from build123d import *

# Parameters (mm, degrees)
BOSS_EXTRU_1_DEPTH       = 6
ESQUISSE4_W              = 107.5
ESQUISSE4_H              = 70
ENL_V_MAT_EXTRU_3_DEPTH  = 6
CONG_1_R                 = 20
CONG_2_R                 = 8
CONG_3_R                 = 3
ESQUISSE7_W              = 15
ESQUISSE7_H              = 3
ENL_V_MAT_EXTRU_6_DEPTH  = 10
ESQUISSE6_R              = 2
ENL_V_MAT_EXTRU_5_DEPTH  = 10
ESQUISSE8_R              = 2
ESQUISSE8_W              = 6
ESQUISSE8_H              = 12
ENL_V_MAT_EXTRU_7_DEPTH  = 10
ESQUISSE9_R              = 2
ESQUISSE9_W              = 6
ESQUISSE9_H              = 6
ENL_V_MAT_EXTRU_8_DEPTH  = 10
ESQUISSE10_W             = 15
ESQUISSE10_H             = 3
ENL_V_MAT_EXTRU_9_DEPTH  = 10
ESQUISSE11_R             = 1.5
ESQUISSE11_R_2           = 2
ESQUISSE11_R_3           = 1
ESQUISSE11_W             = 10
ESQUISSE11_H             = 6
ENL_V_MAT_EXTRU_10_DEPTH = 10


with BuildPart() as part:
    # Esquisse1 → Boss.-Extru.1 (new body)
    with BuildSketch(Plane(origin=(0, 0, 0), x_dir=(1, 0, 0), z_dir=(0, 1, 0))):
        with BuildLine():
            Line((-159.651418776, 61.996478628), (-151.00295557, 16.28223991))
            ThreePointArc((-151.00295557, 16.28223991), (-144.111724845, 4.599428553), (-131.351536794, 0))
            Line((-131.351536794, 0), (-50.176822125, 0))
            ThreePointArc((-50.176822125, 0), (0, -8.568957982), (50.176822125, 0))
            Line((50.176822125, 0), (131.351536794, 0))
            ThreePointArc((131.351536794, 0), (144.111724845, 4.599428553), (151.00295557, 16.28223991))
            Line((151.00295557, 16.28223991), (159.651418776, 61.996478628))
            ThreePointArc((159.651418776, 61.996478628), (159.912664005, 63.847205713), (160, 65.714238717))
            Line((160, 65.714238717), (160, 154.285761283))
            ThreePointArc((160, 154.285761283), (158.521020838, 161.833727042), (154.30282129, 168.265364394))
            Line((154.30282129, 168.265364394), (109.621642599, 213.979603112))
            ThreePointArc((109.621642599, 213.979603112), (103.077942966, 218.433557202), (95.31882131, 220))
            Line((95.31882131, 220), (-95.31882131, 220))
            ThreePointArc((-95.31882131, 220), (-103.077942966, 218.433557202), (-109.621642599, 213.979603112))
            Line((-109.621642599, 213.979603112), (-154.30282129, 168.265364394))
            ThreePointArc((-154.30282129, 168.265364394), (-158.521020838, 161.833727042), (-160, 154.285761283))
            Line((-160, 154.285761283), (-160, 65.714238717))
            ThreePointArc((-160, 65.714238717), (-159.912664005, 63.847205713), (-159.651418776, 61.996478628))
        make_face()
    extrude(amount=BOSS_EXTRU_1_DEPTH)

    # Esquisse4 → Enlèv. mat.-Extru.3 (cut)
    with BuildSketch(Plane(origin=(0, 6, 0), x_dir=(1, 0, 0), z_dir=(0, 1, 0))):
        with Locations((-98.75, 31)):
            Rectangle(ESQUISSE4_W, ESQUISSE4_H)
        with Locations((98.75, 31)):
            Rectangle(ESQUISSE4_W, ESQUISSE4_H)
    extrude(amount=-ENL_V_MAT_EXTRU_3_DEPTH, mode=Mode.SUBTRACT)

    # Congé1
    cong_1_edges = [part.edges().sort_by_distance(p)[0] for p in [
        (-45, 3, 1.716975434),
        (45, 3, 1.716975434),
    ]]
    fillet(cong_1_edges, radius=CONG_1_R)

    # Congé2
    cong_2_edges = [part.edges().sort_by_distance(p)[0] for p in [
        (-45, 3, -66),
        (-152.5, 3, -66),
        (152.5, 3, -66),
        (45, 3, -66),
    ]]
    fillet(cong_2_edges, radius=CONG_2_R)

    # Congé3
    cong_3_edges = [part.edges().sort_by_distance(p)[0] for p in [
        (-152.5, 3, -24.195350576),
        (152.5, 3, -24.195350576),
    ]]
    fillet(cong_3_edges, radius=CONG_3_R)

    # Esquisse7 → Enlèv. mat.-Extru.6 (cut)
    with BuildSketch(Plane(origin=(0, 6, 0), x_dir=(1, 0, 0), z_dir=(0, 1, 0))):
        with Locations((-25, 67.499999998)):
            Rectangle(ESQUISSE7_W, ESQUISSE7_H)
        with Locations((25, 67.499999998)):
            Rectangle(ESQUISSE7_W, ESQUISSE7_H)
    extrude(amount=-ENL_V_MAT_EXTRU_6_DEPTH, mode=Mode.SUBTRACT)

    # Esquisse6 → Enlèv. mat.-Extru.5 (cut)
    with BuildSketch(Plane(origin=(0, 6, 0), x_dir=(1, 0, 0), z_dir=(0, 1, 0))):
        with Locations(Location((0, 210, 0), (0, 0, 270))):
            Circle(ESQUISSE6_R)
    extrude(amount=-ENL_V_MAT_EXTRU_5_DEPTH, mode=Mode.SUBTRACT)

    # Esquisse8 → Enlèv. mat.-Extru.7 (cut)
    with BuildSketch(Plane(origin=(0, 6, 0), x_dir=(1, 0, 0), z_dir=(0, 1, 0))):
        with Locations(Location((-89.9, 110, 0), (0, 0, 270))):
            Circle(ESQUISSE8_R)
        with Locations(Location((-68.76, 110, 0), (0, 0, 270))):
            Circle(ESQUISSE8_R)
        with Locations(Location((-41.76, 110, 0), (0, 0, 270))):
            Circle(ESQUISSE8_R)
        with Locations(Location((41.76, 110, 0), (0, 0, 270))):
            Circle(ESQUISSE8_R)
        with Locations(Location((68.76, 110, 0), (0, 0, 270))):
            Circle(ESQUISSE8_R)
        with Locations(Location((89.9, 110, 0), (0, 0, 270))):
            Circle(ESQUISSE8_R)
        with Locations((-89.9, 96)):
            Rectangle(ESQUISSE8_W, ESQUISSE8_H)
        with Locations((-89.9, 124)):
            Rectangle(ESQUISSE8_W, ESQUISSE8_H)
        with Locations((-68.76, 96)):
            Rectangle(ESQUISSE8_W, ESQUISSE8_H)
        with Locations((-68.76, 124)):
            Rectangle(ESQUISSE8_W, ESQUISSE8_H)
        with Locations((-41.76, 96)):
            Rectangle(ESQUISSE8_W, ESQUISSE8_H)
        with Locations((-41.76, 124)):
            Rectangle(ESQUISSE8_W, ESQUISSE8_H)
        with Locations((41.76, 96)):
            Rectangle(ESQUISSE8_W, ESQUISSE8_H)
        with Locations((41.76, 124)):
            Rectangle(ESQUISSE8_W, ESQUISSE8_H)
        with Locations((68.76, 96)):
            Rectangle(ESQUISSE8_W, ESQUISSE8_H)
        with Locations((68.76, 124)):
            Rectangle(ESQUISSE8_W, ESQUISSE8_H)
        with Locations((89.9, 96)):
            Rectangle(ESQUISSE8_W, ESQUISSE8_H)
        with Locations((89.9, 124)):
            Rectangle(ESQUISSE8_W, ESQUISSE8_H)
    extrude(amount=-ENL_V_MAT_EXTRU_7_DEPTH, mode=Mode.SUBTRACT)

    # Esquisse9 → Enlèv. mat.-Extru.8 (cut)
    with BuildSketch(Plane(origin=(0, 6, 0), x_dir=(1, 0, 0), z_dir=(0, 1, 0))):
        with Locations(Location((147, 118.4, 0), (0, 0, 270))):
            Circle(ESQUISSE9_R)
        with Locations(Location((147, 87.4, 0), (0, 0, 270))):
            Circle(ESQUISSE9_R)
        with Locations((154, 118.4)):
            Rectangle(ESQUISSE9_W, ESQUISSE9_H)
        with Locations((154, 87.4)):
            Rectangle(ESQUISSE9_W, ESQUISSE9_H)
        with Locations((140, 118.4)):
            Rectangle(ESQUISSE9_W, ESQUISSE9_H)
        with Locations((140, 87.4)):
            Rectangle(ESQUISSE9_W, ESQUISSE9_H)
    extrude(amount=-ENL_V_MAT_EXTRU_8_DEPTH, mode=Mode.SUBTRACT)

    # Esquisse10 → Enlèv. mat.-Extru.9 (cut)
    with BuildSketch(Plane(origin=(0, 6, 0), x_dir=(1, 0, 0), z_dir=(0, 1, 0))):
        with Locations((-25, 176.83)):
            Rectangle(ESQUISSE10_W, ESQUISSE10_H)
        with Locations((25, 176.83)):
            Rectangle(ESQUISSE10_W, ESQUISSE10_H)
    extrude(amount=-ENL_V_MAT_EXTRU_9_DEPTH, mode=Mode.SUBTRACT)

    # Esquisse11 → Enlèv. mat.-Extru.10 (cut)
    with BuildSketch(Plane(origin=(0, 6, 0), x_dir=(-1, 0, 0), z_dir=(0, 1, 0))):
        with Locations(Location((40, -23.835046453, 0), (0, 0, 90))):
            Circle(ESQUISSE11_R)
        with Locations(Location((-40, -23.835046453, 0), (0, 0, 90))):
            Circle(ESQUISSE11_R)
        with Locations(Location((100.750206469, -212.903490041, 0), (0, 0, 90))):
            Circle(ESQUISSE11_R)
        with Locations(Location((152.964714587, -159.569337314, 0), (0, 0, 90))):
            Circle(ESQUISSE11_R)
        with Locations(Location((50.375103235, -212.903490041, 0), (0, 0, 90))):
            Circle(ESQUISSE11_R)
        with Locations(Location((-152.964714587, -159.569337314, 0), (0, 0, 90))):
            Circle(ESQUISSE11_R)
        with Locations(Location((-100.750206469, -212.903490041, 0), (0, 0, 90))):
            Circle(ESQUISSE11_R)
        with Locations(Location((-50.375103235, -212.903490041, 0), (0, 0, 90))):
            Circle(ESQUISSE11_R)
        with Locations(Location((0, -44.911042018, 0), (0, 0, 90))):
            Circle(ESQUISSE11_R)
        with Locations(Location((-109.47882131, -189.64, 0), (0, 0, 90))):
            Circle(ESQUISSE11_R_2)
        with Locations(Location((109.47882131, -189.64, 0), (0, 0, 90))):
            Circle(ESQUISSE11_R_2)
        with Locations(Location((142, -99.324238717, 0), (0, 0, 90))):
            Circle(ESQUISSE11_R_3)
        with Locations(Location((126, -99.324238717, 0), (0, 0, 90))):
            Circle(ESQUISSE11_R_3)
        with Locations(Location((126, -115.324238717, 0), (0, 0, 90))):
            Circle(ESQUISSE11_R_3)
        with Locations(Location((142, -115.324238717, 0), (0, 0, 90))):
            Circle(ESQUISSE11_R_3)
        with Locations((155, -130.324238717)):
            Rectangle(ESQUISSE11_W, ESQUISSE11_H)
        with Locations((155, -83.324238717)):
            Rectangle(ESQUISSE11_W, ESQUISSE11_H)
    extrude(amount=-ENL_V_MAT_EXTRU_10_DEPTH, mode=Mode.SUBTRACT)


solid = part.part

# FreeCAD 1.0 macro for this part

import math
import FreeCAD as App
import Part
import Sketcher

V = App.Vector


def edges_at(feature, points):
    """Names of the edges that pass closest to the given points."""
    edges = feature.Shape.Edges
    near = lambda p: min(range(len(edges)), key=lambda i: edges[i].distToShape(Part.Vertex(*p))[0])
    return sorted({f"Edge{near(p) + 1}" for p in points})


def add_polygon(sketch, points):
    """Adds a closed chain of lines whose ends are joined by coincident constraints."""
    first, n = sketch.GeometryCount, len(points)
    for a, b in zip(points, points[1:] + points[:1]):
        sketch.addGeometry(Part.LineSegment(App.Vector(*a, 0), App.Vector(*b, 0)), False)
    for i in range(n):
        sketch.addConstraint(Sketcher.Constraint("Coincident", first + i, 2, first + (i + 1) % n, 1))

doc = App.newDocument("Part")
body = doc.addObject("PartDesign::Body", "Body")

sketch1 = body.newObject("Sketcher::SketchObject", "Sketch")
sketch1.AttachmentSupport = (doc.getObject("XZ_Plane"), [""])
sketch1.MapMode = "FlatFace"
sketch1.addGeometry(Part.LineSegment(V(-159.7, -62, 0), V(-151, -16.3, 0)), False)
sketch1.addGeometry(Part.ArcOfCircle(Part.Circle(V(-131.4, -20, 0), V(0, 0, 1), 20), math.radians(90), math.radians(169)), False)
sketch1.addGeometry(Part.LineSegment(V(-131.4, 0, 0), V(-50.2, 0, 0)), False)
sketch1.addGeometry(Part.ArcOfCircle(Part.Circle(V(0, -142.6, 0), V(0, 0, 1), 151.2), math.radians(71), math.radians(109)), False)
sketch1.addGeometry(Part.LineSegment(V(50.2, 0, 0), V(131.4, 0, 0)), False)
sketch1.addGeometry(Part.ArcOfCircle(Part.Circle(V(131.4, -20, 0), V(0, 0, 1), 20), math.radians(11), math.radians(90)), False)
sketch1.addGeometry(Part.LineSegment(V(151, -16.3, 0), V(159.7, -62, 0)), False)
sketch1.addGeometry(Part.ArcOfCircle(Part.Circle(V(140, -65.7, 0), V(0, 0, 1), 20), math.radians(0), math.radians(10.71)), False)
sketch1.addGeometry(Part.LineSegment(V(160, -65.7, 0), V(160, -154.3, 0)), False)
sketch1.addGeometry(Part.ArcOfCircle(Part.Circle(V(140, -154.3, 0), V(0, 0, 1), 20), math.radians(-44), math.radians(0)), False)
sketch1.addGeometry(Part.LineSegment(V(154.3, -168.3, 0), V(109.6, -214, 0)), False)
sketch1.addGeometry(Part.ArcOfCircle(Part.Circle(V(95.3, -200, 0), V(0, 0, 1), 20), math.radians(-90), math.radians(-44)), False)
sketch1.addGeometry(Part.LineSegment(V(95.3, -220, 0), V(-95.3, -220, 0)), False)
sketch1.addGeometry(Part.ArcOfCircle(Part.Circle(V(-95.3, -200, 0), V(0, 0, 1), 20), math.radians(-136), math.radians(-90)), False)
sketch1.addGeometry(Part.LineSegment(V(-109.6, -214, 0), V(-154.3, -168.3, 0)), False)
sketch1.addGeometry(Part.ArcOfCircle(Part.Circle(V(-140, -154.3, 0), V(0, 0, 1), 20), math.radians(-180), math.radians(-136)), False)
sketch1.addGeometry(Part.LineSegment(V(-160, -154.3, 0), V(-160, -65.7, 0)), False)
sketch1.addGeometry(Part.ArcOfCircle(Part.Circle(V(-140, -65.7, 0), V(0, 0, 1), 20), math.radians(169.29), math.radians(180)), False)
sketch1.addConstraint(Sketcher.Constraint("Tangent", 0, 2, 1, 2))
sketch1.addConstraint(Sketcher.Constraint("Tangent", 1, 1, 2, 1))
sketch1.addConstraint(Sketcher.Constraint("Coincident", 2, 2, 3, 2))
sketch1.addConstraint(Sketcher.Constraint("Coincident", 3, 1, 4, 1))
sketch1.addConstraint(Sketcher.Constraint("Tangent", 4, 2, 5, 2))
sketch1.addConstraint(Sketcher.Constraint("Tangent", 5, 1, 6, 1))
sketch1.addConstraint(Sketcher.Constraint("Tangent", 6, 2, 7, 2))
sketch1.addConstraint(Sketcher.Constraint("Tangent", 7, 1, 8, 1))
sketch1.addConstraint(Sketcher.Constraint("Tangent", 8, 2, 9, 2))
sketch1.addConstraint(Sketcher.Constraint("Tangent", 9, 1, 10, 1))
sketch1.addConstraint(Sketcher.Constraint("Tangent", 10, 2, 11, 2))
sketch1.addConstraint(Sketcher.Constraint("Tangent", 11, 1, 12, 1))
sketch1.addConstraint(Sketcher.Constraint("Tangent", 12, 2, 13, 2))
sketch1.addConstraint(Sketcher.Constraint("Tangent", 13, 1, 14, 1))
sketch1.addConstraint(Sketcher.Constraint("Tangent", 14, 2, 15, 2))
sketch1.addConstraint(Sketcher.Constraint("Tangent", 15, 1, 16, 1))
sketch1.addConstraint(Sketcher.Constraint("Tangent", 16, 2, 17, 2))
sketch1.addConstraint(Sketcher.Constraint("Tangent", 17, 1, 0, 1))
sketch1.addConstraint(Sketcher.Constraint("Horizontal", 2))
sketch1.addConstraint(Sketcher.Constraint("Horizontal", 4))
sketch1.addConstraint(Sketcher.Constraint("Vertical", 8))
sketch1.addConstraint(Sketcher.Constraint("Horizontal", 12))
sketch1.addConstraint(Sketcher.Constraint("Vertical", 16))
sketch1.addConstraint(Sketcher.Constraint("Equal", 1, 5))
sketch1.addConstraint(Sketcher.Constraint("Equal", 5, 7))
sketch1.addConstraint(Sketcher.Constraint("Equal", 7, 9))
sketch1.addConstraint(Sketcher.Constraint("Equal", 9, 11))
sketch1.addConstraint(Sketcher.Constraint("Equal", 11, 13))
sketch1.addConstraint(Sketcher.Constraint("Equal", 13, 15))
sketch1.addConstraint(Sketcher.Constraint("Equal", 15, 17))
sketch1.addConstraint(Sketcher.Constraint("Symmetric", 2, 2, 3, 1, -1, 1))
sketch1.addConstraint(Sketcher.Constraint("Symmetric", 1, 3, 5, 3, -2))
sketch1.addConstraint(Sketcher.Constraint("Symmetric", 9, 3, 15, 3, -2))
sketch1.addConstraint(Sketcher.Constraint("Horizontal", 7, 3, 17, 3))
sketch1.addConstraint(Sketcher.Constraint("Horizontal", 10, 2, 13, 1))
sketch1.addConstraint(Sketcher.Constraint("Radius", 1, 20.0))
sketch1.addConstraint(Sketcher.Constraint("DistanceX", -1, 1, 7, 3, 140.0))
sketch1.addConstraint(Sketcher.Constraint("DistanceY", 11, 3, -1, 1, 200.0))
sketch1.addConstraint(Sketcher.Constraint("Radius", 3, 151.193443))
sketch1.addConstraint(Sketcher.Constraint("DistanceY", 17, 3, 0, 2, 49.431999))
sketch1.addConstraint(Sketcher.Constraint("DistanceX", 11, 3, 9, 1, 58.984))
sketch1.addConstraint(Sketcher.Constraint("Distance", 0, 46.525128))
sketch1.addConstraint(Sketcher.Constraint("DistanceX", 2, 1, 2, 2, 81.174715))
sketch1.addConstraint(Sketcher.Constraint("DistanceX", 12, 2, 12, 1, 190.637643))
pad1 = body.newObject("PartDesign::Pad", "Pad")
pad1.Profile = sketch1
pad1.Length = 6
pad1.Reversed = True

sketch2 = body.newObject("Sketcher::SketchObject", "Sketch001")
sketch2.AttachmentSupport = (doc.getObject("XZ_Plane"), [""])
sketch2.MapMode = "FlatFace"
sketch2.AttachmentOffset = App.Placement(V(0, 0, -6), App.Rotation())
add_polygon(sketch2, [(-152, -66), (-152, 4), (-45, 4), (-45, -66)])
add_polygon(sketch2, [(45, -66), (45, 4), (152, 4), (152, -66)])
sketch2.addConstraint(Sketcher.Constraint("Vertical", 0))
sketch2.addConstraint(Sketcher.Constraint("Horizontal", 1))
sketch2.addConstraint(Sketcher.Constraint("Vertical", 2))
sketch2.addConstraint(Sketcher.Constraint("Horizontal", 3))
sketch2.addConstraint(Sketcher.Constraint("Vertical", 4))
sketch2.addConstraint(Sketcher.Constraint("Horizontal", 5))
sketch2.addConstraint(Sketcher.Constraint("Vertical", 6))
sketch2.addConstraint(Sketcher.Constraint("Horizontal", 7))
sketch2.addConstraint(Sketcher.Constraint("Symmetric", 1, 2, 4, 2, -2))
sketch2.addConstraint(Sketcher.Constraint("Symmetric", 3, 2, 6, 2, -2))
sketch2.addConstraint(Sketcher.Constraint("DistanceY", 0, 1, 0, 2, 70.0))
sketch2.addConstraint(Sketcher.Constraint("DistanceX", 1, 1, 1, 2, 107.5))
sketch2.addConstraint(Sketcher.Constraint("DistanceY", -1, 1, 0, 2, 4.0))
sketch2.addConstraint(Sketcher.Constraint("DistanceX", 1, 2, -1, 1, 45.0))
pocket1 = body.newObject("PartDesign::Pocket", "Pocket")
pocket1.Profile = sketch2
pocket1.Length = 6
pocket1.Reversed = True
doc.recompute()

fillet = body.newObject("PartDesign::Fillet", "Fillet")
fillet.Base = (pocket1, edges_at(pocket1, [(-45, 3, 1.717), (45, 3, 1.717)]))
fillet.Radius = 20
doc.recompute()

fillet2 = body.newObject("PartDesign::Fillet", "Fillet001")
fillet2.Base = (fillet, edges_at(fillet, [
    (-45, 3, -66),
    (-152.5, 3, -66),
    (152.5, 3, -66),
    (45, 3, -66),
]))
fillet2.Radius = 8
doc.recompute()

fillet3 = body.newObject("PartDesign::Fillet", "Fillet002")
fillet3.Base = (fillet2, edges_at(fillet2, [(-152.5, 3, -24.195), (152.5, 3, -24.195)]))
fillet3.Radius = 3

sketch3 = body.newObject("Sketcher::SketchObject", "Sketch002")
sketch3.AttachmentSupport = (doc.getObject("XZ_Plane"), [""])
sketch3.MapMode = "FlatFace"
sketch3.AttachmentOffset = App.Placement(V(0, 0, -6), App.Rotation())
add_polygon(sketch3, [(-32.5, -69), (-32.5, -66), (-17.5, -66), (-17.5, -69)])
add_polygon(sketch3, [(17.5, -69), (17.5, -66), (32.5, -66), (32.5, -69)])
sketch3.addConstraint(Sketcher.Constraint("Vertical", 0))
sketch3.addConstraint(Sketcher.Constraint("Horizontal", 1))
sketch3.addConstraint(Sketcher.Constraint("Vertical", 2))
sketch3.addConstraint(Sketcher.Constraint("Horizontal", 3))
sketch3.addConstraint(Sketcher.Constraint("Vertical", 4))
sketch3.addConstraint(Sketcher.Constraint("Horizontal", 5))
sketch3.addConstraint(Sketcher.Constraint("Vertical", 6))
sketch3.addConstraint(Sketcher.Constraint("Horizontal", 7))
sketch3.addConstraint(Sketcher.Constraint("Symmetric", 1, 2, 4, 2, -2))
sketch3.addConstraint(Sketcher.Constraint("Symmetric", 3, 2, 6, 2, -2))
sketch3.addConstraint(Sketcher.Constraint("DistanceX", 1, 1, 1, 2, 15.0))
sketch3.addConstraint(Sketcher.Constraint("DistanceY", 0, 1, 0, 2, 3.0))
sketch3.addConstraint(Sketcher.Constraint("DistanceY", 0, 2, -1, 1, 66.0))
sketch3.addConstraint(Sketcher.Constraint("DistanceX", 1, 2, 4, 2, 35.0))
pocket2 = body.newObject("PartDesign::Pocket", "Pocket001")
pocket2.Profile = sketch3
pocket2.Length = 10
pocket2.Reversed = True

sketch4 = body.newObject("Sketcher::SketchObject", "Sketch003")
sketch4.AttachmentSupport = (doc.getObject("XZ_Plane"), [""])
sketch4.MapMode = "FlatFace"
sketch4.AttachmentOffset = App.Placement(V(0, 0, -6), App.Rotation())
sketch4.addGeometry(Part.Circle(V(0, -210, 0), V(0, 0, 1), 2), False)
sketch4.addConstraint(Sketcher.Constraint("PointOnObject", 0, 3, -2))
sketch4.addConstraint(Sketcher.Constraint("Diameter", 0, 4.0))
sketch4.addConstraint(Sketcher.Constraint("DistanceY", 0, 3, -1, 1, 210.0))
pocket3 = body.newObject("PartDesign::Pocket", "Pocket002")
pocket3.Profile = sketch4
pocket3.Length = 10
pocket3.Reversed = True

sketch5 = body.newObject("Sketcher::SketchObject", "Sketch004")
sketch5.AttachmentSupport = (doc.getObject("XZ_Plane"), [""])
sketch5.MapMode = "FlatFace"
sketch5.AttachmentOffset = App.Placement(V(0, 0, -6), App.Rotation())
sketch5.addGeometry(Part.Circle(V(-89.9, -110, 0), V(0, 0, 1), 2), False)
sketch5.addGeometry(Part.Circle(V(-68.8, -110, 0), V(0, 0, 1), 2), False)
sketch5.addGeometry(Part.Circle(V(-41.8, -110, 0), V(0, 0, 1), 2), False)
sketch5.addGeometry(Part.Circle(V(41.8, -110, 0), V(0, 0, 1), 2), False)
sketch5.addGeometry(Part.Circle(V(68.8, -110, 0), V(0, 0, 1), 2), False)
sketch5.addGeometry(Part.Circle(V(89.9, -110, 0), V(0, 0, 1), 2), False)
add_polygon(sketch5, [(-92.9, -102), (-92.9, -90), (-86.9, -90), (-86.9, -102)])
add_polygon(sketch5, [(-92.9, -130), (-92.9, -118), (-86.9, -118), (-86.9, -130)])
add_polygon(sketch5, [(-71.8, -102), (-71.8, -90), (-65.8, -90), (-65.8, -102)])
add_polygon(sketch5, [(-71.8, -130), (-71.8, -118), (-65.8, -118), (-65.8, -130)])
add_polygon(sketch5, [(-44.8, -102), (-44.8, -90), (-38.8, -90), (-38.8, -102)])
add_polygon(sketch5, [(-44.8, -130), (-44.8, -118), (-38.8, -118), (-38.8, -130)])
add_polygon(sketch5, [(38.8, -102), (38.8, -90), (44.8, -90), (44.8, -102)])
add_polygon(sketch5, [(38.8, -130), (38.8, -118), (44.8, -118), (44.8, -130)])
add_polygon(sketch5, [(65.8, -102), (65.8, -90), (71.8, -90), (71.8, -102)])
add_polygon(sketch5, [(65.8, -130), (65.8, -118), (71.8, -118), (71.8, -130)])
add_polygon(sketch5, [(86.9, -102), (86.9, -90), (92.9, -90), (92.9, -102)])
add_polygon(sketch5, [(86.9, -130), (86.9, -118), (92.9, -118), (92.9, -130)])
sketch5.addConstraint(Sketcher.Constraint("Vertical", 6))
sketch5.addConstraint(Sketcher.Constraint("Horizontal", 7))
sketch5.addConstraint(Sketcher.Constraint("Vertical", 8))
sketch5.addConstraint(Sketcher.Constraint("Horizontal", 9))
sketch5.addConstraint(Sketcher.Constraint("Vertical", 10))
sketch5.addConstraint(Sketcher.Constraint("Horizontal", 11))
sketch5.addConstraint(Sketcher.Constraint("Vertical", 12))
sketch5.addConstraint(Sketcher.Constraint("Horizontal", 13))
sketch5.addConstraint(Sketcher.Constraint("Vertical", 14))
sketch5.addConstraint(Sketcher.Constraint("Horizontal", 15))
sketch5.addConstraint(Sketcher.Constraint("Vertical", 16))
sketch5.addConstraint(Sketcher.Constraint("Horizontal", 17))
sketch5.addConstraint(Sketcher.Constraint("Vertical", 18))
sketch5.addConstraint(Sketcher.Constraint("Horizontal", 19))
sketch5.addConstraint(Sketcher.Constraint("Vertical", 20))
sketch5.addConstraint(Sketcher.Constraint("Horizontal", 21))
sketch5.addConstraint(Sketcher.Constraint("Vertical", 22))
sketch5.addConstraint(Sketcher.Constraint("Horizontal", 23))
sketch5.addConstraint(Sketcher.Constraint("Vertical", 24))
sketch5.addConstraint(Sketcher.Constraint("Horizontal", 25))
sketch5.addConstraint(Sketcher.Constraint("Vertical", 26))
sketch5.addConstraint(Sketcher.Constraint("Horizontal", 27))
sketch5.addConstraint(Sketcher.Constraint("Vertical", 28))
sketch5.addConstraint(Sketcher.Constraint("Horizontal", 29))
sketch5.addConstraint(Sketcher.Constraint("Vertical", 30))
sketch5.addConstraint(Sketcher.Constraint("Horizontal", 31))
sketch5.addConstraint(Sketcher.Constraint("Vertical", 32))
sketch5.addConstraint(Sketcher.Constraint("Horizontal", 33))
sketch5.addConstraint(Sketcher.Constraint("Vertical", 34))
sketch5.addConstraint(Sketcher.Constraint("Horizontal", 35))
sketch5.addConstraint(Sketcher.Constraint("Vertical", 36))
sketch5.addConstraint(Sketcher.Constraint("Horizontal", 37))
sketch5.addConstraint(Sketcher.Constraint("Vertical", 38))
sketch5.addConstraint(Sketcher.Constraint("Horizontal", 39))
sketch5.addConstraint(Sketcher.Constraint("Vertical", 40))
sketch5.addConstraint(Sketcher.Constraint("Horizontal", 41))
sketch5.addConstraint(Sketcher.Constraint("Vertical", 42))
sketch5.addConstraint(Sketcher.Constraint("Horizontal", 43))
sketch5.addConstraint(Sketcher.Constraint("Vertical", 44))
sketch5.addConstraint(Sketcher.Constraint("Horizontal", 45))
sketch5.addConstraint(Sketcher.Constraint("Vertical", 46))
sketch5.addConstraint(Sketcher.Constraint("Horizontal", 47))
sketch5.addConstraint(Sketcher.Constraint("Vertical", 48))
sketch5.addConstraint(Sketcher.Constraint("Horizontal", 49))
sketch5.addConstraint(Sketcher.Constraint("Vertical", 50))
sketch5.addConstraint(Sketcher.Constraint("Horizontal", 51))
sketch5.addConstraint(Sketcher.Constraint("Vertical", 52))
sketch5.addConstraint(Sketcher.Constraint("Horizontal", 53))
sketch5.addConstraint(Sketcher.Constraint("Equal", 0, 1))
sketch5.addConstraint(Sketcher.Constraint("Equal", 1, 2))
sketch5.addConstraint(Sketcher.Constraint("Equal", 2, 3))
sketch5.addConstraint(Sketcher.Constraint("Equal", 3, 4))
sketch5.addConstraint(Sketcher.Constraint("Equal", 4, 5))
sketch5.addConstraint(Sketcher.Constraint("Symmetric", 2, 3, 3, 3, -2))
sketch5.addConstraint(Sketcher.Constraint("Symmetric", 1, 3, 4, 3, -2))
sketch5.addConstraint(Sketcher.Constraint("Symmetric", 0, 3, 5, 3, -2))
sketch5.addConstraint(Sketcher.Constraint("Symmetric", 23, 2, 30, 2, -2))
sketch5.addConstraint(Sketcher.Constraint("Symmetric", 25, 2, 32, 2, -2))
sketch5.addConstraint(Sketcher.Constraint("Symmetric", 27, 2, 34, 2, -2))
sketch5.addConstraint(Sketcher.Constraint("Symmetric", 29, 2, 36, 2, -2))
sketch5.addConstraint(Sketcher.Constraint("Symmetric", 15, 2, 38, 2, -2))
sketch5.addConstraint(Sketcher.Constraint("Symmetric", 17, 2, 40, 2, -2))
sketch5.addConstraint(Sketcher.Constraint("Symmetric", 19, 2, 42, 2, -2))
sketch5.addConstraint(Sketcher.Constraint("Symmetric", 21, 2, 44, 2, -2))
sketch5.addConstraint(Sketcher.Constraint("Symmetric", 7, 2, 46, 2, -2))
sketch5.addConstraint(Sketcher.Constraint("Symmetric", 9, 2, 48, 2, -2))
sketch5.addConstraint(Sketcher.Constraint("Symmetric", 11, 2, 50, 2, -2))
sketch5.addConstraint(Sketcher.Constraint("Symmetric", 13, 2, 52, 2, -2))
sketch5.addConstraint(Sketcher.Constraint("Horizontal", 0, 3, 1, 3))
sketch5.addConstraint(Sketcher.Constraint("Horizontal", 1, 3, 2, 3))
sketch5.addConstraint(Sketcher.Constraint("Horizontal", 7, 2, 14, 2))
sketch5.addConstraint(Sketcher.Constraint("Horizontal", 9, 2, 16, 2))
sketch5.addConstraint(Sketcher.Constraint("Horizontal", 11, 2, 18, 2))
sketch5.addConstraint(Sketcher.Constraint("Horizontal", 13, 2, 20, 2))
sketch5.addConstraint(Sketcher.Constraint("Horizontal", 15, 2, 22, 2))
sketch5.addConstraint(Sketcher.Constraint("Horizontal", 17, 2, 24, 2))
sketch5.addConstraint(Sketcher.Constraint("Horizontal", 19, 2, 26, 2))
sketch5.addConstraint(Sketcher.Constraint("Horizontal", 21, 2, 28, 2))
sketch5.addConstraint(Sketcher.Constraint("Vertical", 9, 2, 10, 2))
sketch5.addConstraint(Sketcher.Constraint("Vertical", 8, 2, 11, 2))
sketch5.addConstraint(Sketcher.Constraint("Vertical", 17, 2, 18, 2))
sketch5.addConstraint(Sketcher.Constraint("Vertical", 16, 2, 19, 2))
sketch5.addConstraint(Sketcher.Constraint("Vertical", 25, 2, 26, 2))
sketch5.addConstraint(Sketcher.Constraint("Vertical", 24, 2, 27, 2))
sketch5.addConstraint(Sketcher.Constraint("Equal", 13, 15))
sketch5.addConstraint(Sketcher.Constraint("Equal", 21, 23))
sketch5.addConstraint(Sketcher.Constraint("Equal", 8, 10))
sketch5.addConstraint(Sketcher.Constraint("Diameter", 0, 4.0))
sketch5.addConstraint(Sketcher.Constraint("DistanceX", 7, 1, 7, 2, 6.0))
sketch5.addConstraint(Sketcher.Constraint("DistanceY", 6, 1, 6, 2, 12.0))
sketch5.addConstraint(Sketcher.Constraint("DistanceY", 0, 3, -1, 1, 110.0))
sketch5.addConstraint(Sketcher.Constraint("DistanceY", 6, 2, -1, 1, 90.0))
sketch5.addConstraint(Sketcher.Constraint("DistanceY", 10, 2, -1, 1, 118.0))
sketch5.addConstraint(Sketcher.Constraint("DistanceX", 1, 3, 2, 3, 27.0))
sketch5.addConstraint(Sketcher.Constraint("DistanceX", 6, 2, 0, 3, 3.0))
sketch5.addConstraint(Sketcher.Constraint("DistanceX", 14, 2, 1, 3, 3.0))
sketch5.addConstraint(Sketcher.Constraint("DistanceX", 22, 2, 2, 3, 3.0))
sketch5.addConstraint(Sketcher.Constraint("DistanceX", 0, 3, -1, 1, 89.9))
sketch5.addConstraint(Sketcher.Constraint("DistanceX", 1, 3, -1, 1, 68.76))
pocket4 = body.newObject("PartDesign::Pocket", "Pocket003")
pocket4.Profile = sketch5
pocket4.Length = 10
pocket4.Reversed = True

sketch6 = body.newObject("Sketcher::SketchObject", "Sketch005")
sketch6.AttachmentSupport = (doc.getObject("XZ_Plane"), [""])
sketch6.MapMode = "FlatFace"
sketch6.AttachmentOffset = App.Placement(V(0, 0, -6), App.Rotation())
sketch6.addGeometry(Part.Circle(V(147, -118.4, 0), V(0, 0, 1), 2), False)
sketch6.addGeometry(Part.Circle(V(147, -87.4, 0), V(0, 0, 1), 2), False)
add_polygon(sketch6, [(151, -121.4), (151, -115.4), (157, -115.4), (157, -121.4)])
add_polygon(sketch6, [(151, -90.4), (151, -84.4), (157, -84.4), (157, -90.4)])
add_polygon(sketch6, [(137, -121.4), (137, -115.4), (143, -115.4), (143, -121.4)])
add_polygon(sketch6, [(137, -90.4), (137, -84.4), (143, -84.4), (143, -90.4)])
sketch6.addConstraint(Sketcher.Constraint("Vertical", 2))
sketch6.addConstraint(Sketcher.Constraint("Horizontal", 3))
sketch6.addConstraint(Sketcher.Constraint("Vertical", 4))
sketch6.addConstraint(Sketcher.Constraint("Horizontal", 5))
sketch6.addConstraint(Sketcher.Constraint("Vertical", 6))
sketch6.addConstraint(Sketcher.Constraint("Horizontal", 7))
sketch6.addConstraint(Sketcher.Constraint("Vertical", 8))
sketch6.addConstraint(Sketcher.Constraint("Horizontal", 9))
sketch6.addConstraint(Sketcher.Constraint("Vertical", 10))
sketch6.addConstraint(Sketcher.Constraint("Horizontal", 11))
sketch6.addConstraint(Sketcher.Constraint("Vertical", 12))
sketch6.addConstraint(Sketcher.Constraint("Horizontal", 13))
sketch6.addConstraint(Sketcher.Constraint("Vertical", 14))
sketch6.addConstraint(Sketcher.Constraint("Horizontal", 15))
sketch6.addConstraint(Sketcher.Constraint("Vertical", 16))
sketch6.addConstraint(Sketcher.Constraint("Horizontal", 17))
sketch6.addConstraint(Sketcher.Constraint("Equal", 0, 1))
sketch6.addConstraint(Sketcher.Constraint("Horizontal", 3, 2, 10, 2))
sketch6.addConstraint(Sketcher.Constraint("Horizontal", 5, 2, 12, 2))
sketch6.addConstraint(Sketcher.Constraint("Horizontal", 7, 2, 14, 2))
sketch6.addConstraint(Sketcher.Constraint("Horizontal", 9, 2, 16, 2))
sketch6.addConstraint(Sketcher.Constraint("Vertical", 0, 3, 1, 3))
sketch6.addConstraint(Sketcher.Constraint("Vertical", 5, 2, 6, 2))
sketch6.addConstraint(Sketcher.Constraint("Vertical", 4, 2, 7, 2))
sketch6.addConstraint(Sketcher.Constraint("Vertical", 13, 2, 14, 2))
sketch6.addConstraint(Sketcher.Constraint("Vertical", 12, 2, 15, 2))
sketch6.addConstraint(Sketcher.Constraint("Equal", 9, 11))
sketch6.addConstraint(Sketcher.Constraint("Equal", 17, 2))
sketch6.addConstraint(Sketcher.Constraint("Equal", 4, 6))
sketch6.addConstraint(Sketcher.Constraint("Diameter", 0, 4.0))
sketch6.addConstraint(Sketcher.Constraint("DistanceX", 3, 1, 3, 2, 6.0))
sketch6.addConstraint(Sketcher.Constraint("DistanceX", -1, 1, 0, 3, 147.0))
sketch6.addConstraint(Sketcher.Constraint("DistanceX", -1, 1, 2, 2, 151.0))
sketch6.addConstraint(Sketcher.Constraint("DistanceX", -1, 1, 10, 2, 137.0))
sketch6.addConstraint(Sketcher.Constraint("DistanceY", 0, 3, 1, 3, 31.0))
sketch6.addConstraint(Sketcher.Constraint("DistanceY", 0, 3, 2, 2, 3.0))
sketch6.addConstraint(Sketcher.Constraint("DistanceY", 1, 3, 6, 2, 3.0))
sketch6.addConstraint(Sketcher.Constraint("DistanceY", 0, 3, -1, 1, 118.4))
pocket5 = body.newObject("PartDesign::Pocket", "Pocket004")
pocket5.Profile = sketch6
pocket5.Length = 10
pocket5.Reversed = True

sketch7 = body.newObject("Sketcher::SketchObject", "Sketch006")
sketch7.AttachmentSupport = (doc.getObject("XZ_Plane"), [""])
sketch7.MapMode = "FlatFace"
sketch7.AttachmentOffset = App.Placement(V(0, 0, -6), App.Rotation())
add_polygon(sketch7, [(-32.5, -178.3), (-32.5, -175.3), (-17.5, -175.3), (-17.5, -178.3)])
add_polygon(sketch7, [(17.5, -178.3), (17.5, -175.3), (32.5, -175.3), (32.5, -178.3)])
sketch7.addConstraint(Sketcher.Constraint("Vertical", 0))
sketch7.addConstraint(Sketcher.Constraint("Horizontal", 1))
sketch7.addConstraint(Sketcher.Constraint("Vertical", 2))
sketch7.addConstraint(Sketcher.Constraint("Horizontal", 3))
sketch7.addConstraint(Sketcher.Constraint("Vertical", 4))
sketch7.addConstraint(Sketcher.Constraint("Horizontal", 5))
sketch7.addConstraint(Sketcher.Constraint("Vertical", 6))
sketch7.addConstraint(Sketcher.Constraint("Horizontal", 7))
sketch7.addConstraint(Sketcher.Constraint("Symmetric", 1, 2, 4, 2, -2))
sketch7.addConstraint(Sketcher.Constraint("Symmetric", 3, 2, 6, 2, -2))
sketch7.addConstraint(Sketcher.Constraint("DistanceX", 1, 1, 1, 2, 15.0))
sketch7.addConstraint(Sketcher.Constraint("DistanceY", 0, 1, 0, 2, 3.0))
sketch7.addConstraint(Sketcher.Constraint("DistanceX", 1, 2, 4, 2, 35.0))
sketch7.addConstraint(Sketcher.Constraint("DistanceY", 0, 2, -1, 1, 175.33))
pocket6 = body.newObject("PartDesign::Pocket", "Pocket005")
pocket6.Profile = sketch7
pocket6.Length = 10
pocket6.Reversed = True

sketch8 = body.newObject("Sketcher::SketchObject", "Sketch007")
sketch8.AttachmentSupport = (doc.getObject("XZ_Plane"), [""])
sketch8.MapMode = "FlatFace"
sketch8.AttachmentOffset = App.Placement(V(0, 0, -6), App.Rotation())
sketch8.addGeometry(Part.Circle(V(-40, -23.8, 0), V(0, 0, 1), 1.5), False)
sketch8.addGeometry(Part.Circle(V(40, -23.8, 0), V(0, 0, 1), 1.5), False)
sketch8.addGeometry(Part.Circle(V(-100.8, -212.9, 0), V(0, 0, 1), 1.5), False)
sketch8.addGeometry(Part.Circle(V(-153, -159.6, 0), V(0, 0, 1), 1.5), False)
sketch8.addGeometry(Part.Circle(V(-50.4, -212.9, 0), V(0, 0, 1), 1.5), False)
sketch8.addGeometry(Part.Circle(V(153, -159.6, 0), V(0, 0, 1), 1.5), False)
sketch8.addGeometry(Part.Circle(V(100.8, -212.9, 0), V(0, 0, 1), 1.5), False)
sketch8.addGeometry(Part.Circle(V(50.4, -212.9, 0), V(0, 0, 1), 1.5), False)
sketch8.addGeometry(Part.Circle(V(0, -44.9, 0), V(0, 0, 1), 1.5), False)
sketch8.addGeometry(Part.Circle(V(109.5, -189.6, 0), V(0, 0, 1), 2), False)
sketch8.addGeometry(Part.Circle(V(-109.5, -189.6, 0), V(0, 0, 1), 2), False)
sketch8.addGeometry(Part.Circle(V(-142, -99.3, 0), V(0, 0, 1), 1), False)
sketch8.addGeometry(Part.Circle(V(-126, -99.3, 0), V(0, 0, 1), 1), False)
sketch8.addGeometry(Part.Circle(V(-126, -115.3, 0), V(0, 0, 1), 1), False)
sketch8.addGeometry(Part.Circle(V(-142, -115.3, 0), V(0, 0, 1), 1), False)
add_polygon(sketch8, [(-150, -127.3), (-150, -133.3), (-160, -133.3), (-160, -127.3)])
add_polygon(sketch8, [(-150, -80.3), (-150, -86.3), (-160, -86.3), (-160, -80.3)])
sketch8.addConstraint(Sketcher.Constraint("Vertical", 15))
sketch8.addConstraint(Sketcher.Constraint("Horizontal", 16))
sketch8.addConstraint(Sketcher.Constraint("Vertical", 17))
sketch8.addConstraint(Sketcher.Constraint("Horizontal", 18))
sketch8.addConstraint(Sketcher.Constraint("Vertical", 19))
sketch8.addConstraint(Sketcher.Constraint("Horizontal", 20))
sketch8.addConstraint(Sketcher.Constraint("Vertical", 21))
sketch8.addConstraint(Sketcher.Constraint("Horizontal", 22))
sketch8.addConstraint(Sketcher.Constraint("Equal", 0, 1))
sketch8.addConstraint(Sketcher.Constraint("Equal", 1, 2))
sketch8.addConstraint(Sketcher.Constraint("Equal", 2, 3))
sketch8.addConstraint(Sketcher.Constraint("Equal", 3, 4))
sketch8.addConstraint(Sketcher.Constraint("Equal", 4, 5))
sketch8.addConstraint(Sketcher.Constraint("Equal", 5, 6))
sketch8.addConstraint(Sketcher.Constraint("Equal", 6, 7))
sketch8.addConstraint(Sketcher.Constraint("Equal", 7, 8))
sketch8.addConstraint(Sketcher.Constraint("Equal", 9, 10))
sketch8.addConstraint(Sketcher.Constraint("Equal", 11, 12))
sketch8.addConstraint(Sketcher.Constraint("Equal", 12, 13))
sketch8.addConstraint(Sketcher.Constraint("Equal", 13, 14))
sketch8.addConstraint(Sketcher.Constraint("Symmetric", 0, 3, 1, 3, -2))
sketch8.addConstraint(Sketcher.Constraint("Symmetric", 3, 3, 5, 3, -2))
sketch8.addConstraint(Sketcher.Constraint("Symmetric", 2, 3, 6, 3, -2))
sketch8.addConstraint(Sketcher.Constraint("Symmetric", 4, 3, 7, 3, -2))
sketch8.addConstraint(Sketcher.Constraint("Symmetric", 9, 3, 10, 3, -2))
sketch8.addConstraint(Sketcher.Constraint("PointOnObject", 8, 3, -2))
sketch8.addConstraint(Sketcher.Constraint("Horizontal", 2, 3, 4, 3))
sketch8.addConstraint(Sketcher.Constraint("Horizontal", 11, 3, 12, 3))
sketch8.addConstraint(Sketcher.Constraint("Horizontal", 13, 3, 14, 3))
sketch8.addConstraint(Sketcher.Constraint("Vertical", 12, 3, 13, 3))
sketch8.addConstraint(Sketcher.Constraint("Vertical", 11, 3, 14, 3))
sketch8.addConstraint(Sketcher.Constraint("Vertical", 18, 2, 19, 2))
sketch8.addConstraint(Sketcher.Constraint("Vertical", 17, 2, 20, 2))
sketch8.addConstraint(Sketcher.Constraint("Equal", 17, 19))
sketch8.addConstraint(Sketcher.Constraint("Diameter", 0, 3.0))
sketch8.addConstraint(Sketcher.Constraint("Diameter", 9, 4.0))
sketch8.addConstraint(Sketcher.Constraint("Diameter", 11, 2.0))
sketch8.addConstraint(Sketcher.Constraint("DistanceX", 16, 2, 16, 1, 10.0))
sketch8.addConstraint(Sketcher.Constraint("DistanceY", 15, 2, 15, 1, 6.0))
sketch8.addConstraint(Sketcher.Constraint("DistanceX", 0, 3, -1, 1, 40.0))
sketch8.addConstraint(Sketcher.Constraint("DistanceX", 11, 3, -1, 1, 142.0))
sketch8.addConstraint(Sketcher.Constraint("DistanceX", 12, 3, -1, 1, 126.0))
sketch8.addConstraint(Sketcher.Constraint("DistanceX", 15, 2, -1, 1, 150.0))
sketch8.addConstraint(Sketcher.Constraint("DistanceY", 13, 3, 12, 3, 16.0))
sketch8.addConstraint(Sketcher.Constraint("DistanceY", 15, 2, 14, 3, 18.0))
sketch8.addConstraint(Sketcher.Constraint("DistanceY", 11, 3, 19, 2, 13.0))
sketch8.addConstraint(Sketcher.Constraint("DistanceY", 9, 3, -1, 1, 189.64))
sketch8.addConstraint(Sketcher.Constraint("DistanceY", 3, 3, 11, 3, 60.245099))
sketch8.addConstraint(Sketcher.Constraint("DistanceY", 2, 3, -1, 1, 212.90349))
sketch8.addConstraint(Sketcher.Constraint("DistanceX", -1, 1, 9, 3, 109.478821))
sketch8.addConstraint(Sketcher.Constraint("DistanceY", 11, 3, -1, 1, 99.324239))
sketch8.addConstraint(Sketcher.Constraint("DistanceX", 3, 3, 2, 3, 52.214508))
sketch8.addConstraint(Sketcher.Constraint("DistanceY", 3, 3, 0, 3, 135.734291))
sketch8.addConstraint(Sketcher.Constraint("DistanceX", 3, 3, 4, 3, 102.589611))
sketch8.addConstraint(Sketcher.Constraint("DistanceX", 2, 3, 5, 3, 253.714921))
sketch8.addConstraint(Sketcher.Constraint("DistanceY", 4, 3, 8, 3, 167.992448))
pocket7 = body.newObject("PartDesign::Pocket", "Pocket006")
pocket7.Profile = sketch8
pocket7.Length = 10
pocket7.Reversed = True

doc.recompute()
